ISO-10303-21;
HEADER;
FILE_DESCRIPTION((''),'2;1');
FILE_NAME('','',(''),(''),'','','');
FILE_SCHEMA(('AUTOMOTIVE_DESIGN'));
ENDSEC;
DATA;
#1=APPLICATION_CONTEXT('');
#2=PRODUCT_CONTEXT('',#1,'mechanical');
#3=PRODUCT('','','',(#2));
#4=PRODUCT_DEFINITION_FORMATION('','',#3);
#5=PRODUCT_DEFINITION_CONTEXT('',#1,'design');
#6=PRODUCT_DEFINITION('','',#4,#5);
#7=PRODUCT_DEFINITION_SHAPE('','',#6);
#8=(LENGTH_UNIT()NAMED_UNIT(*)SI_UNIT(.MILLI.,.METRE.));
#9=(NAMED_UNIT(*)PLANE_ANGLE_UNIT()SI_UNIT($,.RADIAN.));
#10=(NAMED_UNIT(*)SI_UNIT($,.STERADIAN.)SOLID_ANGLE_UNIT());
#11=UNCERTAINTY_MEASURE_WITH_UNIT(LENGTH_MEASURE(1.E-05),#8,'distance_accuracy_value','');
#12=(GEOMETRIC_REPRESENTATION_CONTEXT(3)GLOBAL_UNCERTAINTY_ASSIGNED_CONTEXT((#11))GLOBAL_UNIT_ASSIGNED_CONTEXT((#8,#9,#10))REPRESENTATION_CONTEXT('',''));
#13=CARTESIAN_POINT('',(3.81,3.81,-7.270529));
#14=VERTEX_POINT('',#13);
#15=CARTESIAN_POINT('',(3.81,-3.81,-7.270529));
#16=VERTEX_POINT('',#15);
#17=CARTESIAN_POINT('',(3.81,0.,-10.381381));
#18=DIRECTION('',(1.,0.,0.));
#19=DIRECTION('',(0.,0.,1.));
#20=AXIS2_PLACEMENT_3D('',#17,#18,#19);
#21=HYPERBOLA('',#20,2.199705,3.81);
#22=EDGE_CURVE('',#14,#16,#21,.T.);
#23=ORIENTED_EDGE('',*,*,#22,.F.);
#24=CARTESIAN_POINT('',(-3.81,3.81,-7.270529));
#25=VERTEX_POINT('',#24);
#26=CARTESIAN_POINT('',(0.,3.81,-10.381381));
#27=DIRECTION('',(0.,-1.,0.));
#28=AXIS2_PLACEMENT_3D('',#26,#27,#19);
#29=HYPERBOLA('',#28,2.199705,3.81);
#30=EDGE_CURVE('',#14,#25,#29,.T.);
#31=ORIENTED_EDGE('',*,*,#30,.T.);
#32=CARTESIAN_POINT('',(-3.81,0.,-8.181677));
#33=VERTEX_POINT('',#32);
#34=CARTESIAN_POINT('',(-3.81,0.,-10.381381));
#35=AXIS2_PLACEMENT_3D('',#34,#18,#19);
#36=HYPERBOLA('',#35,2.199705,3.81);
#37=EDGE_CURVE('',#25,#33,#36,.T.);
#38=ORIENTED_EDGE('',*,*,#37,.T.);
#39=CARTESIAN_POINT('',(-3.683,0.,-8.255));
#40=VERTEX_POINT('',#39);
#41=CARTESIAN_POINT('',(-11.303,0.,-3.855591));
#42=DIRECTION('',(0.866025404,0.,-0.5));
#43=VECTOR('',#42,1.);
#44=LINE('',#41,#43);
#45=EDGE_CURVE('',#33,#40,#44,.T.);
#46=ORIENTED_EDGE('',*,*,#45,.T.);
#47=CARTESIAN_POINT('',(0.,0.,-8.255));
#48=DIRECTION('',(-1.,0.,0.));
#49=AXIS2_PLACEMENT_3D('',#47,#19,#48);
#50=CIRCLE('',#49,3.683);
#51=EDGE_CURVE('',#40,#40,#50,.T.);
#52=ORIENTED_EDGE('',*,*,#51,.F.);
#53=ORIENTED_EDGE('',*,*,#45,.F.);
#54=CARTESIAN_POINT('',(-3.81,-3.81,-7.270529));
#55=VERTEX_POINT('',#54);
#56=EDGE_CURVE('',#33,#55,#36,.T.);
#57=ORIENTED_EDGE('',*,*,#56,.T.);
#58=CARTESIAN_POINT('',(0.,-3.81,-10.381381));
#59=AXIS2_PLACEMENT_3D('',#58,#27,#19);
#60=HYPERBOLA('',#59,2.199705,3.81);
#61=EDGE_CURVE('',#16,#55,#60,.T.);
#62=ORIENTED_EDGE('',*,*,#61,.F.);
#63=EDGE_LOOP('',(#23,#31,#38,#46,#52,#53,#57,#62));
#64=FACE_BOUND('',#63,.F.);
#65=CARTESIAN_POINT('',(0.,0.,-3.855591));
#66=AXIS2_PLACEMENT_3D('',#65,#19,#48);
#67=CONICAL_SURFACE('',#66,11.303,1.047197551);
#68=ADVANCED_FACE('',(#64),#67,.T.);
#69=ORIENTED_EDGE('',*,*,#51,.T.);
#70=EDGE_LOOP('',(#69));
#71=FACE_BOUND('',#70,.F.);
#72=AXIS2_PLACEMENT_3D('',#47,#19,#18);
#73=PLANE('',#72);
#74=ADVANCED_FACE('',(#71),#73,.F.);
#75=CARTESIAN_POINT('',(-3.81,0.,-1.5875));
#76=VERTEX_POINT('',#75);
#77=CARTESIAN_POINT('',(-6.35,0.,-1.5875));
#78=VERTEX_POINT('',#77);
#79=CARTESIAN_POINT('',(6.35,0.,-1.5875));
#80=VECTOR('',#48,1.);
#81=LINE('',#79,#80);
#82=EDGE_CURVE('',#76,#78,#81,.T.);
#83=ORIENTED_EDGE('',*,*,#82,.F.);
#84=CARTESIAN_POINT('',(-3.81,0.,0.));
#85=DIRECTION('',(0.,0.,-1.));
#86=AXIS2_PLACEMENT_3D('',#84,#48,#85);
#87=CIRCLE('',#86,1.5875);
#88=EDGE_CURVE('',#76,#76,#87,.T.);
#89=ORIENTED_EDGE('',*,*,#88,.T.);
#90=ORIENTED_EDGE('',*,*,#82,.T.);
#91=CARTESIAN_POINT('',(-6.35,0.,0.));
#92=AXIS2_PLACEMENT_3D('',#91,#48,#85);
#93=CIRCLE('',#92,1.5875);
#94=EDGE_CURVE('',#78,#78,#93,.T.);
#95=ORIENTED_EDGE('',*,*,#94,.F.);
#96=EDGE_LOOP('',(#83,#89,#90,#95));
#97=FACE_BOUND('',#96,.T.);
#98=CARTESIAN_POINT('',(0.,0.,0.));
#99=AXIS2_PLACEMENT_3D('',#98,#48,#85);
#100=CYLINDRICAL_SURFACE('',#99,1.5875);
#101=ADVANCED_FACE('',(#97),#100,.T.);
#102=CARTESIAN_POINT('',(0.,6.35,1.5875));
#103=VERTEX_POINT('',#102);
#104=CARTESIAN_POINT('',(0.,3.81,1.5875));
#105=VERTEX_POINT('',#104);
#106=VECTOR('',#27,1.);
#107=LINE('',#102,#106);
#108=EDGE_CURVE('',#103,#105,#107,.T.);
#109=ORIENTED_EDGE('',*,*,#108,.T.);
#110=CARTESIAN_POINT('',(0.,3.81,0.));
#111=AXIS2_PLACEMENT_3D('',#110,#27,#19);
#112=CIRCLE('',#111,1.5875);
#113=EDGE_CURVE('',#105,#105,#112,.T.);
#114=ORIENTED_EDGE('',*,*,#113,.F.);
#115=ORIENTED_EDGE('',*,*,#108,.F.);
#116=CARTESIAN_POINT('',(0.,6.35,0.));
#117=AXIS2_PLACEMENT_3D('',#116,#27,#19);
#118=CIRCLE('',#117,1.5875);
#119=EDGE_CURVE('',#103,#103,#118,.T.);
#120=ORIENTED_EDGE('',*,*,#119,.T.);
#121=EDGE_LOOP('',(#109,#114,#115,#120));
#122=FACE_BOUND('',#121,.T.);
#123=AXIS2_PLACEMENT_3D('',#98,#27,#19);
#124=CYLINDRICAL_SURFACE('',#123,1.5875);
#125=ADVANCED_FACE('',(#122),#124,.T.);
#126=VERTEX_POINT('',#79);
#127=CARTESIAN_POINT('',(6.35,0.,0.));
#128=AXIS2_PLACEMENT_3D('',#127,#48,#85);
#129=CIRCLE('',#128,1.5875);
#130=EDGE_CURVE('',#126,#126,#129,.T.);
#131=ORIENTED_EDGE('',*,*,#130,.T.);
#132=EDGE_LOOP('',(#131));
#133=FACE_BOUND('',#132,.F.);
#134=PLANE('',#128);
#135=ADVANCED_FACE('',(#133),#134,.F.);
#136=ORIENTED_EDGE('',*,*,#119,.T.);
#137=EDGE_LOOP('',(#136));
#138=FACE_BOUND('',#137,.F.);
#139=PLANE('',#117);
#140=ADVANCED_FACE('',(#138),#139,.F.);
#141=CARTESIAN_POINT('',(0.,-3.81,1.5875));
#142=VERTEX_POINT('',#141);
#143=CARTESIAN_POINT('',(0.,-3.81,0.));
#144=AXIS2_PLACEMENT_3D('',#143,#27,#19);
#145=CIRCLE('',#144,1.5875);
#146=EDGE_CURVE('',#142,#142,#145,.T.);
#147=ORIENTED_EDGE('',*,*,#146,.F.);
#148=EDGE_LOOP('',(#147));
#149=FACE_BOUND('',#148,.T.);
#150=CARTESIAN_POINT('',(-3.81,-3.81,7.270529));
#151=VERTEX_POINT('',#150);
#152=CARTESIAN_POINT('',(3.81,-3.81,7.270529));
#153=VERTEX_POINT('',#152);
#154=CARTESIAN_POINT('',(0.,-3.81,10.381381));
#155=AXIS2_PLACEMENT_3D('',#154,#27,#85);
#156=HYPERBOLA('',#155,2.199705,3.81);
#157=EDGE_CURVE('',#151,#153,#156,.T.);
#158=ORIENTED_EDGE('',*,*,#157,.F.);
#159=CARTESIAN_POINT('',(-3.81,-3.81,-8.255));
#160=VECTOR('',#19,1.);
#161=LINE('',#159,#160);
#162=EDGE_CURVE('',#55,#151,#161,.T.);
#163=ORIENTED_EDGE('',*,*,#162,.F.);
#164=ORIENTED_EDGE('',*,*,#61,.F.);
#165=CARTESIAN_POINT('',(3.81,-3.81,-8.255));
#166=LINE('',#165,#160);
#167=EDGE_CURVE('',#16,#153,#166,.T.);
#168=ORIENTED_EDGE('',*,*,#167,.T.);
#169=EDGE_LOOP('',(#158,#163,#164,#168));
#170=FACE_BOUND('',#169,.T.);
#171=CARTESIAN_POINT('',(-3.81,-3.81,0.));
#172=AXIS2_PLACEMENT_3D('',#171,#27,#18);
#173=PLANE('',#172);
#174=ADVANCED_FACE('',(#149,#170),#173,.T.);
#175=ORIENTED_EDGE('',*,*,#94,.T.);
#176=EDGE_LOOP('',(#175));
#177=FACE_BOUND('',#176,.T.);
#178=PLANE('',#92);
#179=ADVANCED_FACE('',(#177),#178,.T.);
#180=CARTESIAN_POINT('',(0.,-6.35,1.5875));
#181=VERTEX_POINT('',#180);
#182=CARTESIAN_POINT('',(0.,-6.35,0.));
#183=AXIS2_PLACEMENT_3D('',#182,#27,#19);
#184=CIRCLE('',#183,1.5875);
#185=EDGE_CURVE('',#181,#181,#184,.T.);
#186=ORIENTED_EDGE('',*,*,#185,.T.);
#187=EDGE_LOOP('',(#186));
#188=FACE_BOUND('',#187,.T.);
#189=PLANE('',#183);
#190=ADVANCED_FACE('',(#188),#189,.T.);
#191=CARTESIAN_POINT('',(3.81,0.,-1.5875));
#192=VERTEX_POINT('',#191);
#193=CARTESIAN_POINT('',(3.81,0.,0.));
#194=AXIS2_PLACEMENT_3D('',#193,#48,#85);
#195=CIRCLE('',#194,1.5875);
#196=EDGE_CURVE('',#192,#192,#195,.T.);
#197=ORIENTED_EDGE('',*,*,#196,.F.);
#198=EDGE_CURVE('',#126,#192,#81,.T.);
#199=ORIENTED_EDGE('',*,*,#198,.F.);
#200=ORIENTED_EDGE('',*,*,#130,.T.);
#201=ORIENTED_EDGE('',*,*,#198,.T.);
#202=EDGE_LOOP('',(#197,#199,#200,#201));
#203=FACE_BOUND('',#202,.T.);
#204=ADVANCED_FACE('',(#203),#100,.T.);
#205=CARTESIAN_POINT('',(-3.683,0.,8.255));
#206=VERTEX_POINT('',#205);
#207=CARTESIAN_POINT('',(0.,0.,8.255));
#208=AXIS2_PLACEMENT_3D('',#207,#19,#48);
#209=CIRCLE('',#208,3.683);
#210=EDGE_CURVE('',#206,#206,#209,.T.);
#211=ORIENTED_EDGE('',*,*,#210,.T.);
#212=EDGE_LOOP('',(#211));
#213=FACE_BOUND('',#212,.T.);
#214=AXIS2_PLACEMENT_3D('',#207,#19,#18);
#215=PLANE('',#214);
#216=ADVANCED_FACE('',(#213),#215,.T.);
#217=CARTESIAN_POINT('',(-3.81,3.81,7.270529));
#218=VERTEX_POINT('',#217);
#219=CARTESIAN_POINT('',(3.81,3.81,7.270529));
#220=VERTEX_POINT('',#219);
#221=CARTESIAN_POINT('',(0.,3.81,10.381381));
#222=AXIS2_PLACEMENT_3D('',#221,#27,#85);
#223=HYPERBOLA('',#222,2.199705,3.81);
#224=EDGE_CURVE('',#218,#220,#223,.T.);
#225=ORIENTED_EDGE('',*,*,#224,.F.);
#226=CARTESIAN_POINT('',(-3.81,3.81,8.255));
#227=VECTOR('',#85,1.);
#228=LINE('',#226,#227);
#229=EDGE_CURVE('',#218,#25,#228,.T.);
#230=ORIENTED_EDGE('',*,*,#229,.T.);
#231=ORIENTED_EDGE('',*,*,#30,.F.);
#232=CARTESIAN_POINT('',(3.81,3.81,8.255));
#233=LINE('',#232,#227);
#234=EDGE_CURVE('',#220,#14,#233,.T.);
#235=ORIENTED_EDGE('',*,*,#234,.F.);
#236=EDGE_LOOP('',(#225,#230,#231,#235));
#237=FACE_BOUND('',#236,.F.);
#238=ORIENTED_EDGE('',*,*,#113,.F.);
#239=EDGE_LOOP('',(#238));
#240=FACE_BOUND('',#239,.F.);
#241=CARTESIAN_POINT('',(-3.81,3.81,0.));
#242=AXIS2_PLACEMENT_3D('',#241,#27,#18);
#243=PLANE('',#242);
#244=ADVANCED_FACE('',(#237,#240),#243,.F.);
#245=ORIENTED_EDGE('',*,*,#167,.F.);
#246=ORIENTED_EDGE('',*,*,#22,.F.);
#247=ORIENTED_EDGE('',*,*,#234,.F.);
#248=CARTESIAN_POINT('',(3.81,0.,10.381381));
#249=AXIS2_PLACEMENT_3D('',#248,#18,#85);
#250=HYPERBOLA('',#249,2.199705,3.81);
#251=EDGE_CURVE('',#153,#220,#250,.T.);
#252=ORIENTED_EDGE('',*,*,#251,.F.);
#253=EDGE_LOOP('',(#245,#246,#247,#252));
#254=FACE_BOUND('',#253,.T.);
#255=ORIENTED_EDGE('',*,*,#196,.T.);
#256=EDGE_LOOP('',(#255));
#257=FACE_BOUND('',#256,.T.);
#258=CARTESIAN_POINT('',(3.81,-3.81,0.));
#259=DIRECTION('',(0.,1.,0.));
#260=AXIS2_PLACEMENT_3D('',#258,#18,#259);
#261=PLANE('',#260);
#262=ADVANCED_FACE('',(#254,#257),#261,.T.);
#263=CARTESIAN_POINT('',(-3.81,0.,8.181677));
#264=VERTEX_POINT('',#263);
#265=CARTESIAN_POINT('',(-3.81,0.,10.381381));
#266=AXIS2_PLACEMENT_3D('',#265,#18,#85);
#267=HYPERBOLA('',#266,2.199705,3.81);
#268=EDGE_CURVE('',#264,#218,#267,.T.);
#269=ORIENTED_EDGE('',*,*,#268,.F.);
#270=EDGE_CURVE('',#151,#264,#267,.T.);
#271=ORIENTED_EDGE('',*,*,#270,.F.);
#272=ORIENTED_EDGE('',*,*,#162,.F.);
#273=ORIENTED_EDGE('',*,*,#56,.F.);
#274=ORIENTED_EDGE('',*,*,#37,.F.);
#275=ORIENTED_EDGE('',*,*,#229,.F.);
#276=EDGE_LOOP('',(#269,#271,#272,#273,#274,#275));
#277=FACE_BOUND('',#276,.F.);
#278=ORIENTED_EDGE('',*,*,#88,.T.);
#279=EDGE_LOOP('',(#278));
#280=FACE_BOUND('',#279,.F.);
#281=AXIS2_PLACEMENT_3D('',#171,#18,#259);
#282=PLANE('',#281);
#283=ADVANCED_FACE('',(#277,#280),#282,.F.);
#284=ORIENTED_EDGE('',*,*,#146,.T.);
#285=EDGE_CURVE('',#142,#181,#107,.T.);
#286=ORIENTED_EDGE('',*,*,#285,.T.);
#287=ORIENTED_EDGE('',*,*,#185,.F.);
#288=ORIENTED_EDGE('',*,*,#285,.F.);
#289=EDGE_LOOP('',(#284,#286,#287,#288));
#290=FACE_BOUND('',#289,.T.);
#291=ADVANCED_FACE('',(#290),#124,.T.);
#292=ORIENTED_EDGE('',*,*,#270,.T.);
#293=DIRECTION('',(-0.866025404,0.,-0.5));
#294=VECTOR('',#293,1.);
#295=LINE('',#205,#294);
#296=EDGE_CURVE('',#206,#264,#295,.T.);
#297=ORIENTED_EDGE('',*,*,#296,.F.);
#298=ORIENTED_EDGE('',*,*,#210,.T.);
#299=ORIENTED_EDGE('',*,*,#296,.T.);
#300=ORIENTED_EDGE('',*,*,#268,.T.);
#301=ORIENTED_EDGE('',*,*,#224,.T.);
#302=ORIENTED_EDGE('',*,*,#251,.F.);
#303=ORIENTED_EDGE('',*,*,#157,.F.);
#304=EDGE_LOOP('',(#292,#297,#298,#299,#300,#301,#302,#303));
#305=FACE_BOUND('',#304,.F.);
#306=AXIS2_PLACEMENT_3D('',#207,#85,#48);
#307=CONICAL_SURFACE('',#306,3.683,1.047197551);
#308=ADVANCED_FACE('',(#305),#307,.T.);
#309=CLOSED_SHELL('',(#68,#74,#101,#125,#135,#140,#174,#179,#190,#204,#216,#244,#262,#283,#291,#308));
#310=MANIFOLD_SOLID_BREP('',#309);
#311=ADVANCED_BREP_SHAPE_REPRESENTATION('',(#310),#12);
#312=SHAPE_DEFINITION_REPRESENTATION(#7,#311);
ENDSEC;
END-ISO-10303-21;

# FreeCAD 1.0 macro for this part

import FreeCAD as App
import Part
import Sketcher

V = App.Vector
Q = App.Units.Quantity

doc = App.newDocument("Part")
params = doc.addObject("Spreadsheet::Sheet", "Params")
for row, (alias, value) in enumerate([
    ("sketch1_width", "0.3 in"),
    ("pad1_length", "0.65 in"),
    ("sketch2_width", "0.35 in"),
    ("sketch2_height", "0.65 in"),
    ("groove_angle", "360 deg"),
    ("sketch3_diameter", "0.125 in"),
    ("pad2_length", "0.5 in"),
    ("sketch4_diameter", "0.125 in"),
    ("pad3_length", "0.5 in"),
], start=1):
    params.set(f"A{row}", alias)
    params.set(f"B{row}", "=" + value)
    params.setAlias(f"B{row}", alias)

body = doc.addObject("PartDesign::Body", "Body")

# Sketch on XY plane
sketch1 = doc.addObject("Sketcher::SketchObject", "Sketch")
body.addObject(sketch1)
sketch1.AttachmentSupport = (doc.XY_Plane, [""])
sketch1.MapMode = "FlatFace"
sketch1.addGeometry([
    Part.LineSegment(V(-4, 4, 0), V(-4, -4, 0)),
    Part.LineSegment(V(-4, -4, 0), V(4, -4, 0)),
    Part.LineSegment(V(4, -4, 0), V(4, 4, 0)),
    Part.LineSegment(V(4, 4, 0), V(-4, 4, 0)),
], False)
sketch1.addConstraint([
    Sketcher.Constraint("Coincident", 0, 2, 1, 1),
    Sketcher.Constraint("Coincident", 1, 2, 2, 1),
    Sketcher.Constraint("Coincident", 2, 2, 3, 1),
    Sketcher.Constraint("Coincident", 3, 2, 0, 1),
    Sketcher.Constraint("Vertical", 0),
    Sketcher.Constraint("Horizontal", 1),
    Sketcher.Constraint("Vertical", 2),
    Sketcher.Constraint("Horizontal", 3),
    Sketcher.Constraint("Symmetric", 0, 2, 2, 2, -1, 1),
    Sketcher.Constraint("Equal", 3, 0),
    Sketcher.Constraint("DistanceX", 1, 1, 1, 2, Q("0.3 in")),
])
sketch1.setExpression("Constraints[10]", "Params.sketch1_width")
pad1 = doc.addObject("PartDesign::Pad", "Pad")
body.addObject(pad1)
pad1.Profile = sketch1
pad1.setExpression("Length", "Params.pad1_length")
pad1.Midplane = True

# Sketch on XZ plane
sketch2 = doc.addObject("Sketcher::SketchObject", "Sketch001")
body.addObject(sketch2)
sketch2.AttachmentSupport = (doc.XZ_Plane, [""])
sketch2.MapMode = "FlatFace"
sketch2.addGeometry([
    Part.LineSegment(V(4, -8, 0), V(13, -8, 0)),  # 0
    Part.LineSegment(V(13, -8, 0), V(13, 8, 0)),  # 1
    Part.LineSegment(V(13, 8, 0), V(4, 8, 0)),  # 2
    Part.LineSegment(V(4, 8, 0), V(11, 4, 0)),  # 3
    Part.LineSegment(V(11, 4, 0), V(11, -4, 0)),  # 4
    Part.LineSegment(V(11, -4, 0), V(4, -8, 0)),  # 5
], False)
sketch2.addConstraint([
    Sketcher.Constraint("Coincident", 0, 2, 1, 1),
    Sketcher.Constraint("Coincident", 1, 2, 2, 1),
    Sketcher.Constraint("Coincident", 2, 2, 3, 1),
    Sketcher.Constraint("Coincident", 3, 2, 4, 1),
    Sketcher.Constraint("Coincident", 4, 2, 5, 1),
    Sketcher.Constraint("Coincident", 5, 2, 0, 1),
    Sketcher.Constraint("Horizontal", 0),
    Sketcher.Constraint("Vertical", 1),
    Sketcher.Constraint("Horizontal", 2),
    Sketcher.Constraint("Vertical", 4),
    Sketcher.Constraint("Symmetric", 2, 2, 5, 2, -1),
    Sketcher.Constraint("Equal", 3, 5),
    Sketcher.Constraint("Angle", 3, Q("-30 deg")),
    Sketcher.Constraint("DistanceX", 0, 1, 0, 2, Q("0.35 in")),
    Sketcher.Constraint("DistanceY", 1, 1, 1, 2, Q("0.65 in")),
    Sketcher.Constraint("DistanceX", 2, 2, 3, 2, Q("0.3 in")),
    Sketcher.Constraint("DistanceX", -1, 1, 0, 2, Q("0.495 in")),
])
sketch2.setExpression("Constraints[13]", "Params.sketch2_width")
sketch2.setExpression("Constraints[14]", "Params.sketch2_height")
groove = doc.addObject("PartDesign::Groove", "Groove")
body.addObject(groove)
groove.Profile = sketch2
groove.ReferenceAxis = (sketch2, ["V_Axis"])
groove.setExpression("Angle", "Params.groove_angle")

# Sketch on XZ plane
sketch3 = doc.addObject("Sketcher::SketchObject", "Sketch002")
body.addObject(sketch3)
sketch3.AttachmentSupport = (doc.XZ_Plane, [""])
sketch3.MapMode = "FlatFace"
sketch3.addGeometry(Part.Circle(V(0, 0, 0), V(0, 0, 1), 1.6), False)
sketch3.addConstraint([
    Sketcher.Constraint("Coincident", 0, 3, -1, 1),
    Sketcher.Constraint("Diameter", 0, Q("0.125 in")),
])
sketch3.setExpression("Constraints[1]", "Params.sketch3_diameter")
pad2 = doc.addObject("PartDesign::Pad", "Pad001")
body.addObject(pad2)
pad2.Profile = sketch3
pad2.setExpression("Length", "Params.pad2_length")
pad2.Midplane = True

# Sketch on YZ plane
sketch4 = doc.addObject("Sketcher::SketchObject", "Sketch003")
body.addObject(sketch4)
sketch4.AttachmentSupport = (doc.YZ_Plane, [""])
sketch4.MapMode = "FlatFace"
sketch4.addGeometry(Part.Circle(V(0, 0, 0), V(0, 0, 1), 1.6), False)
sketch4.addConstraint([
    Sketcher.Constraint("Coincident", 0, 3, -1, 1),
    Sketcher.Constraint("Diameter", 0, Q("0.125 in")),
])
sketch4.setExpression("Constraints[1]", "Params.sketch4_diameter")
pad3 = doc.addObject("PartDesign::Pad", "Pad002")
body.addObject(pad3)
pad3.Profile = sketch4
pad3.setExpression("Length", "Params.pad3_length")
pad3.Midplane = True

doc.recompute()
